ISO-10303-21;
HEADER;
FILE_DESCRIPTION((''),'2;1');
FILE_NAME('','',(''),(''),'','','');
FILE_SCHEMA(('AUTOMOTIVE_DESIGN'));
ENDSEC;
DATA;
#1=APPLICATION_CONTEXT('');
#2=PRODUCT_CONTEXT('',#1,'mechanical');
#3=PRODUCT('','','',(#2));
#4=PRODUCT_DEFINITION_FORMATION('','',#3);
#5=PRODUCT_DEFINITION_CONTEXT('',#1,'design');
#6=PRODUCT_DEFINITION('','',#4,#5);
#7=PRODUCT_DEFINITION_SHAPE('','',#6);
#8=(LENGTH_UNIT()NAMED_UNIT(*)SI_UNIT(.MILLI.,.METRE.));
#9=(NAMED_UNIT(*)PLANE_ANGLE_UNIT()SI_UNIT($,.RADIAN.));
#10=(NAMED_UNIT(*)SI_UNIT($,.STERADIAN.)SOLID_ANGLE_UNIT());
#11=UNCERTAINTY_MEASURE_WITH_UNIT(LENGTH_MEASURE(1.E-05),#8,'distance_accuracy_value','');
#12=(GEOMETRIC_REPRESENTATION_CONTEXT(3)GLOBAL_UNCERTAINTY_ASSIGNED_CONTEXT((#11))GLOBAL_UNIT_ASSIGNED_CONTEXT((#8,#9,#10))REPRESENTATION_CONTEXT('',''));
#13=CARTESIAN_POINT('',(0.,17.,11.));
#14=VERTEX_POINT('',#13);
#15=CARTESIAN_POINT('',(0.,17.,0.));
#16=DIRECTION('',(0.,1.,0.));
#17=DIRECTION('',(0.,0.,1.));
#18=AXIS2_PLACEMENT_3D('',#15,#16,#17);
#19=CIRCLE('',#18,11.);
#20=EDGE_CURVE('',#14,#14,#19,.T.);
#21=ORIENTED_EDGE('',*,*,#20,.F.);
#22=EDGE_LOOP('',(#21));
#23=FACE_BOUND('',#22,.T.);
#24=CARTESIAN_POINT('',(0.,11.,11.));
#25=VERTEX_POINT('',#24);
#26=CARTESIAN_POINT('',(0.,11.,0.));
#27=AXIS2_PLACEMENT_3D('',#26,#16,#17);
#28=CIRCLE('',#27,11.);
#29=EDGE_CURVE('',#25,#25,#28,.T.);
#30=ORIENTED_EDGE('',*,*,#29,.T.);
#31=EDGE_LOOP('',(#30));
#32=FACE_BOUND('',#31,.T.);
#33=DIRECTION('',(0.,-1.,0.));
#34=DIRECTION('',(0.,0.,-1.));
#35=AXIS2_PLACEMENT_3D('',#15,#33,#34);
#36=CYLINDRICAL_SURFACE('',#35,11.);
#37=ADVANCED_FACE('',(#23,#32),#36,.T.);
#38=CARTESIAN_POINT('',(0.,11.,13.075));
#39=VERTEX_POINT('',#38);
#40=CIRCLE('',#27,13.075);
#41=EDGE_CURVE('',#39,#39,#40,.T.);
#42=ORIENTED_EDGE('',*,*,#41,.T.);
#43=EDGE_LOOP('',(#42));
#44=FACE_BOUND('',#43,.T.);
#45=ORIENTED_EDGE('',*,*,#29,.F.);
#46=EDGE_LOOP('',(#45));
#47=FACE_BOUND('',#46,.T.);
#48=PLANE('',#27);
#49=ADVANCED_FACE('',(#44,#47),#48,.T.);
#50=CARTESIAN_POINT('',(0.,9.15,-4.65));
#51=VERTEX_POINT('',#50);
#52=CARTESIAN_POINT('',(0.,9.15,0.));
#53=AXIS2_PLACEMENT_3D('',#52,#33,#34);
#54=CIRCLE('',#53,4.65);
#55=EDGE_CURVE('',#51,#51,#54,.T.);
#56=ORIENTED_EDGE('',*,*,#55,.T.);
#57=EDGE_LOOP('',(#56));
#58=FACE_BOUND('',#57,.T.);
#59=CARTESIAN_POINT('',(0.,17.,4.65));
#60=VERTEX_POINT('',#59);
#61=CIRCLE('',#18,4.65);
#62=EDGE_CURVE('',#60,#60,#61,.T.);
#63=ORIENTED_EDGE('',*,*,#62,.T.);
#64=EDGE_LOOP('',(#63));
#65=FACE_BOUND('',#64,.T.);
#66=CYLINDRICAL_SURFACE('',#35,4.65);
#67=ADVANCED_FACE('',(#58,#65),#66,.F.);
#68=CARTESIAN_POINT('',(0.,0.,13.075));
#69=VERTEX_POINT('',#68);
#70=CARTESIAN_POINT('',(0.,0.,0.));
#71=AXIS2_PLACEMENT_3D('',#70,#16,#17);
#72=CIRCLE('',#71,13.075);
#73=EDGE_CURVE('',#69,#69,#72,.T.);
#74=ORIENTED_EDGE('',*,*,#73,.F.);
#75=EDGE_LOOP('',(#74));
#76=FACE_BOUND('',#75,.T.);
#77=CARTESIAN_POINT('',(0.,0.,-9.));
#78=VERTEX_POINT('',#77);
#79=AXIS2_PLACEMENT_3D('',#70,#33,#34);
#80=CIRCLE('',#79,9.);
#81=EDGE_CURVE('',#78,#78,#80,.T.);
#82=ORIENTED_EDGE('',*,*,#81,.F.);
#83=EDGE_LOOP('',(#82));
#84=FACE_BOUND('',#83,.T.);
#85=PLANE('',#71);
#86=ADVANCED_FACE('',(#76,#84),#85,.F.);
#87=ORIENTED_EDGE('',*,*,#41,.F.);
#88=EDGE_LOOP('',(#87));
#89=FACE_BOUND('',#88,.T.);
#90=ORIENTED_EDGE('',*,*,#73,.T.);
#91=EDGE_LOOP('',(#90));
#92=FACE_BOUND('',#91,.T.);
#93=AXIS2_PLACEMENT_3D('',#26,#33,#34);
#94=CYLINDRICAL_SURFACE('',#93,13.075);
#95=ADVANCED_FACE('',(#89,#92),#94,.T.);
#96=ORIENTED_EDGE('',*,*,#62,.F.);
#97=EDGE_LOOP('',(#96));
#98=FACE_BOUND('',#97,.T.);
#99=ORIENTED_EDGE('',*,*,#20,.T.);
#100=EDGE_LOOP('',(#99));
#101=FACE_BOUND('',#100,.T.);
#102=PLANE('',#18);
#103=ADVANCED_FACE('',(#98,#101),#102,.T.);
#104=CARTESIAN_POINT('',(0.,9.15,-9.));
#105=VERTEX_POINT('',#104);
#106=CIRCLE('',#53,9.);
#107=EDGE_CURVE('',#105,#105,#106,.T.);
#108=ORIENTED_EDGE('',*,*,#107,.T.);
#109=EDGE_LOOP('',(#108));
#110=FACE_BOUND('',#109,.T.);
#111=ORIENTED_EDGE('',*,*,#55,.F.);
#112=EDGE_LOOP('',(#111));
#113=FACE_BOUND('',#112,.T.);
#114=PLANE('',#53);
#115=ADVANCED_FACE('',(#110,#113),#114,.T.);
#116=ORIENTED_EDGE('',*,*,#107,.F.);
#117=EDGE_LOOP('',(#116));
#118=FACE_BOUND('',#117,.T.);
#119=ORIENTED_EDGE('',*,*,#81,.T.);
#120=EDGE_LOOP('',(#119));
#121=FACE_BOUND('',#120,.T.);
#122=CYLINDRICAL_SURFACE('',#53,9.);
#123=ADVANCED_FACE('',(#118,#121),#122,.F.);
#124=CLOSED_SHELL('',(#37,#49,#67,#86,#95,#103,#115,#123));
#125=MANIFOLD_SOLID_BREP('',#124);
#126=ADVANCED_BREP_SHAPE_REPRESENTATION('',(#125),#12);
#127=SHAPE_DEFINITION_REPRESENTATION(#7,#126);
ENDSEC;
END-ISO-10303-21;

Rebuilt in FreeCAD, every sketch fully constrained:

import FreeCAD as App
import Part
import Sketcher
from FreeCAD import Vector

doc = App.newDocument("Part")
params = doc.addObject("Spreadsheet::Sheet", "Params")
for row, (alias, value) in enumerate([
    ("sketch1_diameter", "22 mm"),
    ("sketch1_diameter2", "9.3 mm"),
    ("pad1_length", "17 mm"),
    ("sketch2_diameter", "22 mm"),
    ("sketch2_diameter2", "26.15 mm"),
    ("pad2_length", "11 mm"),
    ("sketch3_diameter", "18 mm"),
    ("pocket1_length", "9.15 mm"),
], start=1):
    params.set(f"A{row}", alias)
    params.set(f"B{row}", "=" + value)
    params.setAlias(f"B{row}", alias)

body = doc.addObject("PartDesign::Body", "Body")

# Sketch on XZ plane
sketch1 = body.newObject("Sketcher::SketchObject", "Sketch")
sketch1.AttachmentSupport = (doc.getObject("XZ_Plane"), [""])
sketch1.MapMode = "FlatFace"
sketch1.addGeometry([
    Part.Circle(Vector(0, 0, 0), Vector(0, 0, 1), 11),
    Part.Circle(Vector(0, 0, 0), Vector(0, 0, 1), 4.65),
], False)
sketch1.addConstraint([
    Sketcher.Constraint("Coincident", 0, 3, -1, 1),
    Sketcher.Constraint("Coincident", 1, 3, -1, 1),
    Sketcher.Constraint("Diameter", 0, 22.0),
    Sketcher.Constraint("Diameter", 1, 9.3),
])
sketch1.setExpression("Constraints[2]", "Params.sketch1_diameter")
sketch1.setExpression("Constraints[3]", "Params.sketch1_diameter2")
pad1 = body.newObject("PartDesign::Pad", "Pad")
pad1.Profile = sketch1
pad1.setExpression("Length", "Params.pad1_length")
pad1.Reversed = True

# Sketch on XZ plane
sketch2 = body.newObject("Sketcher::SketchObject", "Sketch001")
sketch2.AttachmentSupport = (doc.getObject("XZ_Plane"), [""])
sketch2.MapMode = "FlatFace"
sketch2.addGeometry([
    Part.Circle(Vector(0, 0, 0), Vector(0, 0, 1), 13.075),
    Part.Circle(Vector(0, 0, 0), Vector(0, 0, 1), 11),
], False)
sketch2.addConstraint([
    Sketcher.Constraint("Coincident", 0, 3, -1, 1),
    Sketcher.Constraint("Coincident", 1, 3, -1, 1),
    Sketcher.Constraint("Diameter", 1, 22.0),
    Sketcher.Constraint("Diameter", 0, 26.15),
])
sketch2.setExpression("Constraints[2]", "Params.sketch2_diameter")
sketch2.setExpression("Constraints[3]", "Params.sketch2_diameter2")
pad2 = body.newObject("PartDesign::Pad", "Pad001")
pad2.Profile = sketch2
pad2.setExpression("Length", "Params.pad2_length")
pad2.Reversed = True

# Sketch on XZ plane
sketch3 = body.newObject("Sketcher::SketchObject", "Sketch002")
sketch3.AttachmentSupport = (doc.getObject("XZ_Plane"), [""])
sketch3.MapMode = "FlatFace"
sketch3.addGeometry(Part.Circle(Vector(0, 0, 0), Vector(0, 0, 1), 9), False)
sketch3.addConstraint([
    Sketcher.Constraint("Coincident", 0, 3, -1, 1),
    Sketcher.Constraint("Diameter", 0, 18.0),
])
sketch3.setExpression("Constraints[1]", "Params.sketch3_diameter")
pocket1 = body.newObject("PartDesign::Pocket", "Pocket")
pocket1.Profile = sketch3
pocket1.setExpression("Length", "Params.pocket1_length")

doc.recompute()
